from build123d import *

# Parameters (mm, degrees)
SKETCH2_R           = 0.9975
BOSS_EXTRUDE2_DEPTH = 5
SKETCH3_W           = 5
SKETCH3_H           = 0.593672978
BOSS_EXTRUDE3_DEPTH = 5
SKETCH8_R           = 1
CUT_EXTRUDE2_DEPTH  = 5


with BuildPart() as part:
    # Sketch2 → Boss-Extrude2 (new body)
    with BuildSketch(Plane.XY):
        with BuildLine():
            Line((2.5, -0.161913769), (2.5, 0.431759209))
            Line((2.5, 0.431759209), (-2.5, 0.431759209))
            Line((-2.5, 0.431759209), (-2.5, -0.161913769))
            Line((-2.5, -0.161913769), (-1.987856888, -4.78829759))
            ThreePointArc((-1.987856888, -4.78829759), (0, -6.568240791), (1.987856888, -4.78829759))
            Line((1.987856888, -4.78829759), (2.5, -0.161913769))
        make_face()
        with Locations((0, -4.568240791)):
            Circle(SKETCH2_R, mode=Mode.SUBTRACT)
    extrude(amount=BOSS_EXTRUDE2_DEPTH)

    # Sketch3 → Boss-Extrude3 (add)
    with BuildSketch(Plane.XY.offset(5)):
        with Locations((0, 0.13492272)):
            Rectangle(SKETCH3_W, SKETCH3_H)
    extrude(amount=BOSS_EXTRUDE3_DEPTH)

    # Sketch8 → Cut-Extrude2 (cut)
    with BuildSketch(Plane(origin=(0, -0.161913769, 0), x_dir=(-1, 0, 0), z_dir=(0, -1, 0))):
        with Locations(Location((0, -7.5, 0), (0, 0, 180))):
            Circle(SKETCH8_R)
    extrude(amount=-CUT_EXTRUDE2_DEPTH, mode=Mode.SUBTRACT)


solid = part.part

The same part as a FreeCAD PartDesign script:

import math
import FreeCAD as App
import Part
import Sketcher


def add_polygon(sketch, points):
    """Adds a closed chain of lines whose ends are joined by coincident constraints."""
    first, n = sketch.GeometryCount, len(points)
    for a, b in zip(points, points[1:] + points[:1]):
        sketch.addGeometry(Part.LineSegment(App.Vector(*a, 0), App.Vector(*b, 0)), False)
    for i in range(n):
        sketch.addConstraint(Sketcher.Constraint("Coincident", first + i, 2, first + (i + 1) % n, 1))

doc = App.newDocument("Part")
body = doc.addObject("PartDesign::Body", "Body")

# Sketch on XY plane
sketch1 = body.newObject("Sketcher::SketchObject", "Sketch")
sketch1.AttachmentSupport = (doc.getObject("XY_Plane"), [""])
sketch1.MapMode = "FlatFace"
sketch1.addGeometry(Part.LineSegment(App.Vector(2.5, -0.2, 0), App.Vector(2.5, 0.4, 0)), False)
sketch1.addGeometry(Part.LineSegment(App.Vector(2.5, 0.4, 0), App.Vector(-2.5, 0.4, 0)), False)
sketch1.addGeometry(Part.LineSegment(App.Vector(-2.5, 0.4, 0), App.Vector(-2.5, -0.2, 0)), False)
sketch1.addGeometry(Part.LineSegment(App.Vector(-2.5, -0.2, 0), App.Vector(-2, -4.8, 0)), False)
sketch1.addGeometry(Part.ArcOfCircle(Part.Circle(App.Vector(0, -4.6, 0), App.Vector(0, 0, 1), 2), math.radians(-174), math.radians(-6)), False)
sketch1.addGeometry(Part.LineSegment(App.Vector(2, -4.8, 0), App.Vector(2.5, -0.2, 0)), False)
sketch1.addGeometry(Part.Circle(App.Vector(0, -4.6, 0), App.Vector(0, 0, 1), 1), False)
sketch1.addConstraint(Sketcher.Constraint("Coincident", 0, 2, 1, 1))
sketch1.addConstraint(Sketcher.Constraint("Coincident", 1, 2, 2, 1))
sketch1.addConstraint(Sketcher.Constraint("Coincident", 2, 2, 3, 1))
sketch1.addConstraint(Sketcher.Constraint("Tangent", 3, 2, 4, 1))
sketch1.addConstraint(Sketcher.Constraint("Tangent", 4, 2, 5, 1))
sketch1.addConstraint(Sketcher.Constraint("Coincident", 5, 2, 0, 1))
sketch1.addConstraint(Sketcher.Constraint("Vertical", 0))
sketch1.addConstraint(Sketcher.Constraint("Horizontal", 1))
sketch1.addConstraint(Sketcher.Constraint("Vertical", 2))
sketch1.addConstraint(Sketcher.Constraint("Coincident", 6, 3, 4, 3))
sketch1.addConstraint(Sketcher.Constraint("Symmetric", 3, 2, 4, 2, -2))
sketch1.addConstraint(Sketcher.Constraint("Horizontal", 2, 2, 5, 2))
sketch1.addConstraint(Sketcher.Constraint("Radius", 4, 2.0))
sketch1.addConstraint(Sketcher.Constraint("DistanceX", 1, 2, 1, 1, 5.0))
sketch1.addConstraint(Sketcher.Constraint("Diameter", 6, 1.995))
sketch1.addConstraint(Sketcher.Constraint("DistanceY", 4, 3, 0, 2, 5.0))
sketch1.addConstraint(Sketcher.Constraint("DistanceY", 0, 1, 0, 2, 0.593673))
sketch1.addConstraint(Sketcher.Constraint("DistanceY", 4, 3, -1, 1, 4.568241))
pad1 = body.newObject("PartDesign::Pad", "Pad")
pad1.Profile = sketch1
pad1.Length = 5

# Sketch on XY plane
sketch2 = body.newObject("Sketcher::SketchObject", "Sketch001")
sketch2.AttachmentSupport = (doc.getObject("XY_Plane"), [""])
sketch2.MapMode = "FlatFace"
sketch2.AttachmentOffset = App.Placement(App.Vector(0, 0, 5), App.Rotation())
add_polygon(sketch2, [(-2.5, 0.4), (-2.5, -0.2), (2.5, -0.2), (2.5, 0.4)])  # lines 0-3
sketch2.addConstraint(Sketcher.Constraint("Vertical", 0))
sketch2.addConstraint(Sketcher.Constraint("Horizontal", 1))
sketch2.addConstraint(Sketcher.Constraint("Vertical", 2))
sketch2.addConstraint(Sketcher.Constraint("Horizontal", 3))
sketch2.addConstraint(Sketcher.Constraint("DistanceX", 1, 1, 1, 2, 5.0))
sketch2.addConstraint(Sketcher.Constraint("DistanceX", 0, 2, -1, 1, 2.5))
sketch2.addConstraint(Sketcher.Constraint("DistanceY", 0, 2, 0, 1, 0.593673))
sketch2.addConstraint(Sketcher.Constraint("DistanceY", -1, 1, 2, 2, 0.431759))
pad2 = body.newObject("PartDesign::Pad", "Pad001")
pad2.Profile = sketch2
pad2.Length = 5

# Sketch on XZ plane
sketch3 = body.newObject("Sketcher::SketchObject", "Sketch002")
sketch3.AttachmentSupport = (doc.getObject("XZ_Plane"), [""])
sketch3.MapMode = "FlatFace"
sketch3.AttachmentOffset = App.Placement(App.Vector(0, 0, 0.161914), App.Rotation())
sketch3.addGeometry(Part.Circle(App.Vector(0, 7.5, 0), App.Vector(0, 0, 1), 1), False)
sketch3.addConstraint(Sketcher.Constraint("PointOnObject", 0, 3, -2))
sketch3.addConstraint(Sketcher.Constraint("Diameter", 0, 2.0))
sketch3.addConstraint(Sketcher.Constraint("DistanceY", -1, 1, 0, 3, 7.5))
pocket1 = body.newObject("PartDesign::Pocket", "Pocket")
pocket1.Profile = sketch3
pocket1.Length = 5

doc.recompute()
